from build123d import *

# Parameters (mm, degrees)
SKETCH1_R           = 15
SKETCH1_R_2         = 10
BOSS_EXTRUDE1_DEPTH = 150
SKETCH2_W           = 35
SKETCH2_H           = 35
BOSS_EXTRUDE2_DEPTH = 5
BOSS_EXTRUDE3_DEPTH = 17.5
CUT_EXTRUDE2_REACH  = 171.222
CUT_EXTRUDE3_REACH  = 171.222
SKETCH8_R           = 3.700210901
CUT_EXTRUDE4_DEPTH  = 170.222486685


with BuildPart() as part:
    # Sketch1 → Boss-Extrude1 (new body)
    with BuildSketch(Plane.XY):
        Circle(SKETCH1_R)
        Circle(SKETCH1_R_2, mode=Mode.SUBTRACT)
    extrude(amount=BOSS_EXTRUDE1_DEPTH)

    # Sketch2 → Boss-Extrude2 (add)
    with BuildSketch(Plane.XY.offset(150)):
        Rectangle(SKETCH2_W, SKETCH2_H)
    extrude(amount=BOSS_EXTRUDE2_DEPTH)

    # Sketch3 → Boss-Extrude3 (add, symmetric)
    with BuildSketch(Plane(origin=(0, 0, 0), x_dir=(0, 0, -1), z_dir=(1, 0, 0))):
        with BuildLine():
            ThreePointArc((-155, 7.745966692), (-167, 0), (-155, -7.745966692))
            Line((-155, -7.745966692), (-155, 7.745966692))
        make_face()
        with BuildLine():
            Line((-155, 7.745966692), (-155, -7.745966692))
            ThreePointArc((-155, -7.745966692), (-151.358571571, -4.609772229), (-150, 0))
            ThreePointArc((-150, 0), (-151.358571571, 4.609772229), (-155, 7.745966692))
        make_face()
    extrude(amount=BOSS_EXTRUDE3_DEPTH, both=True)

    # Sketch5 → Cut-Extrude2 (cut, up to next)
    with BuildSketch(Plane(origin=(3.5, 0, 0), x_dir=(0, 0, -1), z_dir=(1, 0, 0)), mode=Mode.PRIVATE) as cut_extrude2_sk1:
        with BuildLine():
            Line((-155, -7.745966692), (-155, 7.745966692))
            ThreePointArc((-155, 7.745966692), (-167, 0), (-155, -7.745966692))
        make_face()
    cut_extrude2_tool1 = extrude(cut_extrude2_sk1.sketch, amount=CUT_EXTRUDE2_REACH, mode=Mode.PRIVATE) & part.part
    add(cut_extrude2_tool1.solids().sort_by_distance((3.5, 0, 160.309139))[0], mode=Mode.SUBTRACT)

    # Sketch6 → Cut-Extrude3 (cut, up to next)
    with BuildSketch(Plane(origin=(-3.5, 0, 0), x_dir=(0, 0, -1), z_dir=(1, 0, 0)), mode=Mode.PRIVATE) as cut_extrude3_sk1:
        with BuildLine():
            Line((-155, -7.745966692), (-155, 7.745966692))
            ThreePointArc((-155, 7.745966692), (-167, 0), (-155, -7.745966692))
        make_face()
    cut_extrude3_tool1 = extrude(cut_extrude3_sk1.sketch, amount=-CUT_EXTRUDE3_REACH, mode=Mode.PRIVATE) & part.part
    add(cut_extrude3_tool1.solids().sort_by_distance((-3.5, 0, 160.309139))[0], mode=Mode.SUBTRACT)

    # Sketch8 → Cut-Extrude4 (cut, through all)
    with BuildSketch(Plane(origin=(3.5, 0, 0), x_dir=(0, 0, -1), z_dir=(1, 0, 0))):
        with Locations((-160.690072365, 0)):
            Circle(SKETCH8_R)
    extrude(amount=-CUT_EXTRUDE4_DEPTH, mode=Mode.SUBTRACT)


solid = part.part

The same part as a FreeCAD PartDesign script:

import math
import FreeCAD as App
import Part
import Sketcher

V = App.Vector

doc = App.newDocument("Part")
body = doc.addObject("PartDesign::Body", "Body")

# Sketch on XY plane
sketch1 = doc.addObject("Sketcher::SketchObject", "Sketch")
body.addObject(sketch1)
sketch1.AttachmentSupport = (doc.XY_Plane, [""])
sketch1.MapMode = "FlatFace"
sketch1.addGeometry(Part.Circle(V(0, 0, 0), V(0, 0, 1), 15), False)
sketch1.addGeometry(Part.Circle(V(0, 0, 0), V(0, 0, 1), 10), False)
sketch1.addConstraint(Sketcher.Constraint("Coincident", 0, 3, -1, 1))
sketch1.addConstraint(Sketcher.Constraint("Coincident", 1, 3, -1, 1))
sketch1.addConstraint(Sketcher.Constraint("Diameter", 0, 30.0))
sketch1.addConstraint(Sketcher.Constraint("Diameter", 1, 20.0))
pad1 = doc.addObject("PartDesign::Pad", "Pad")
body.addObject(pad1)
pad1.Profile = sketch1
pad1.Length = 150

# Sketch on XY plane
sketch2 = doc.addObject("Sketcher::SketchObject", "Sketch001")
body.addObject(sketch2)
sketch2.AttachmentSupport = (doc.XY_Plane, [""])
sketch2.MapMode = "FlatFace"
sketch2.AttachmentOffset = App.Placement(V(0, 0, 150), App.Rotation())
sketch2.addGeometry(Part.LineSegment(V(-18, 18, 0), V(-18, -18, 0)), False)
sketch2.addGeometry(Part.LineSegment(V(-18, -18, 0), V(18, -18, 0)), False)
sketch2.addGeometry(Part.LineSegment(V(18, -18, 0), V(18, 18, 0)), False)
sketch2.addGeometry(Part.LineSegment(V(18, 18, 0), V(-18, 18, 0)), False)
sketch2.addConstraint(Sketcher.Constraint("Coincident", 0, 2, 1, 1))
sketch2.addConstraint(Sketcher.Constraint("Coincident", 1, 2, 2, 1))
sketch2.addConstraint(Sketcher.Constraint("Coincident", 2, 2, 3, 1))
sketch2.addConstraint(Sketcher.Constraint("Coincident", 3, 2, 0, 1))
sketch2.addConstraint(Sketcher.Constraint("Vertical", 0))
sketch2.addConstraint(Sketcher.Constraint("Horizontal", 1))
sketch2.addConstraint(Sketcher.Constraint("Vertical", 2))
sketch2.addConstraint(Sketcher.Constraint("Horizontal", 3))
sketch2.addConstraint(Sketcher.Constraint("Symmetric", 0, 2, 2, 2, -1, 1))
sketch2.addConstraint(Sketcher.Constraint("Equal", 3, 0))
sketch2.addConstraint(Sketcher.Constraint("DistanceX", 1, 1, 1, 2, 35.0))
pad2 = doc.addObject("PartDesign::Pad", "Pad001")
body.addObject(pad2)
pad2.Profile = sketch2
pad2.Length = 5

# Sketch on YZ plane
sketch3 = doc.addObject("Sketcher::SketchObject", "Sketch002")
body.addObject(sketch3)
sketch3.AttachmentSupport = (doc.YZ_Plane, [""])
sketch3.MapMode = "FlatFace"
sketch3.addGeometry(Part.ArcOfCircle(Part.Circle(V(0, 158, 0), V(0, 0, 1), 8), math.radians(-24), math.radians(204)), False)
sketch3.addGeometry(Part.ArcOfCircle(Part.Circle(V(0, 158, 0), V(0, 0, 1), 8), math.radians(-156), math.radians(-90)), False)
sketch3.addGeometry(Part.ArcOfCircle(Part.Circle(V(0, 158, 0), V(0, 0, 1), 8), math.radians(-90), math.radians(-24)), False)
sketch3.addConstraint(Sketcher.Constraint("Tangent", 0, 2, 1, 1))
sketch3.addConstraint(Sketcher.Constraint("Tangent", 1, 2, 2, 1))
sketch3.addConstraint(Sketcher.Constraint("Tangent", 2, 2, 0, 1))
sketch3.addConstraint(Sketcher.Constraint("Symmetric", 0, 2, 2, 2, -2))
sketch3.addConstraint(Sketcher.Constraint("PointOnObject", 1, 2, -2))
sketch3.addConstraint(Sketcher.Constraint("Radius", 0, 8.5))
sketch3.addConstraint(Sketcher.Constraint("DistanceY", -1, 1, 0, 2, 155.0))
sketch3.addConstraint(Sketcher.Constraint("DistanceY", -1, 1, 1, 2, 150.0))
pad3 = doc.addObject("PartDesign::Pad", "Pad002")
body.addObject(pad3)
pad3.Profile = sketch3
pad3.Length = 35
pad3.Midplane = True

# Sketch on YZ plane
sketch4 = doc.addObject("Sketcher::SketchObject", "Sketch003")
body.addObject(sketch4)
sketch4.AttachmentSupport = (doc.YZ_Plane, [""])
sketch4.MapMode = "FlatFace"
sketch4.AttachmentOffset = App.Placement(V(0, 0, 3.5), App.Rotation())
sketch4.addGeometry(Part.LineSegment(V(-8, 155, 0), V(8, 155, 0)), False)
sketch4.addGeometry(Part.ArcOfCircle(Part.Circle(V(0, 158, 0), V(0, 0, 1), 8), math.radians(-24), math.radians(204)), False)
sketch4.addConstraint(Sketcher.Constraint("Coincident", 0, 1, 1, 2))
sketch4.addConstraint(Sketcher.Constraint("Coincident", 1, 1, 0, 2))
sketch4.addConstraint(Sketcher.Constraint("Horizontal", 0))
sketch4.addConstraint(Sketcher.Constraint("PointOnObject", 1, 3, -2))
sketch4.addConstraint(Sketcher.Constraint("Radius", 1, 8.5))
sketch4.addConstraint(Sketcher.Constraint("DistanceY", -1, 1, 0, 1, 155.0))
sketch4.addConstraint(Sketcher.Constraint("DistanceY", -1, 1, 1, 3, 158.5))
pocket1 = doc.addObject("PartDesign::Pocket", "Pocket")
body.addObject(pocket1)
pocket1.Profile = sketch4
pocket1.Type = "UpToFirst"
pocket1.Reversed = True

# Sketch on YZ plane
sketch5 = doc.addObject("Sketcher::SketchObject", "Sketch004")
body.addObject(sketch5)
sketch5.AttachmentSupport = (doc.YZ_Plane, [""])
sketch5.MapMode = "FlatFace"
sketch5.AttachmentOffset = App.Placement(V(0, 0, -3.5), App.Rotation())
sketch5.addGeometry(Part.LineSegment(V(-8, 155, 0), V(8, 155, 0)), False)
sketch5.addGeometry(Part.ArcOfCircle(Part.Circle(V(0, 158, 0), V(0, 0, 1), 8), math.radians(-24), math.radians(204)), False)
sketch5.addConstraint(Sketcher.Constraint("Coincident", 0, 1, 1, 2))
sketch5.addConstraint(Sketcher.Constraint("Coincident", 1, 1, 0, 2))
sketch5.addConstraint(Sketcher.Constraint("Horizontal", 0))
sketch5.addConstraint(Sketcher.Constraint("PointOnObject", 1, 3, -2))
sketch5.addConstraint(Sketcher.Constraint("Radius", 1, 8.5))
sketch5.addConstraint(Sketcher.Constraint("DistanceY", -1, 1, 0, 1, 155.0))
sketch5.addConstraint(Sketcher.Constraint("DistanceY", -1, 1, 1, 3, 158.5))
pocket2 = doc.addObject("PartDesign::Pocket", "Pocket001")
body.addObject(pocket2)
pocket2.Profile = sketch5
pocket2.Type = "UpToFirst"

# Sketch on YZ plane
sketch6 = doc.addObject("Sketcher::SketchObject", "Sketch005")
body.addObject(sketch6)
sketch6.AttachmentSupport = (doc.YZ_Plane, [""])
sketch6.MapMode = "FlatFace"
sketch6.AttachmentOffset = App.Placement(V(0, 0, 3.5), App.Rotation())
sketch6.addGeometry(Part.Circle(V(0, 160.7, 0), V(0, 0, 1), 3.7), False)
sketch6.addConstraint(Sketcher.Constraint("PointOnObject", 0, 3, -2))
sketch6.addConstraint(Sketcher.Constraint("Diameter", 0, 7.400422))
sketch6.addConstraint(Sketcher.Constraint("DistanceY", -1, 1, 0, 3, 160.690072))
pocket3 = doc.addObject("PartDesign::Pocket", "Pocket002")
body.addObject(pocket3)
pocket3.Profile = sketch6
pocket3.Type = "ThroughAll"

doc.recompute()
